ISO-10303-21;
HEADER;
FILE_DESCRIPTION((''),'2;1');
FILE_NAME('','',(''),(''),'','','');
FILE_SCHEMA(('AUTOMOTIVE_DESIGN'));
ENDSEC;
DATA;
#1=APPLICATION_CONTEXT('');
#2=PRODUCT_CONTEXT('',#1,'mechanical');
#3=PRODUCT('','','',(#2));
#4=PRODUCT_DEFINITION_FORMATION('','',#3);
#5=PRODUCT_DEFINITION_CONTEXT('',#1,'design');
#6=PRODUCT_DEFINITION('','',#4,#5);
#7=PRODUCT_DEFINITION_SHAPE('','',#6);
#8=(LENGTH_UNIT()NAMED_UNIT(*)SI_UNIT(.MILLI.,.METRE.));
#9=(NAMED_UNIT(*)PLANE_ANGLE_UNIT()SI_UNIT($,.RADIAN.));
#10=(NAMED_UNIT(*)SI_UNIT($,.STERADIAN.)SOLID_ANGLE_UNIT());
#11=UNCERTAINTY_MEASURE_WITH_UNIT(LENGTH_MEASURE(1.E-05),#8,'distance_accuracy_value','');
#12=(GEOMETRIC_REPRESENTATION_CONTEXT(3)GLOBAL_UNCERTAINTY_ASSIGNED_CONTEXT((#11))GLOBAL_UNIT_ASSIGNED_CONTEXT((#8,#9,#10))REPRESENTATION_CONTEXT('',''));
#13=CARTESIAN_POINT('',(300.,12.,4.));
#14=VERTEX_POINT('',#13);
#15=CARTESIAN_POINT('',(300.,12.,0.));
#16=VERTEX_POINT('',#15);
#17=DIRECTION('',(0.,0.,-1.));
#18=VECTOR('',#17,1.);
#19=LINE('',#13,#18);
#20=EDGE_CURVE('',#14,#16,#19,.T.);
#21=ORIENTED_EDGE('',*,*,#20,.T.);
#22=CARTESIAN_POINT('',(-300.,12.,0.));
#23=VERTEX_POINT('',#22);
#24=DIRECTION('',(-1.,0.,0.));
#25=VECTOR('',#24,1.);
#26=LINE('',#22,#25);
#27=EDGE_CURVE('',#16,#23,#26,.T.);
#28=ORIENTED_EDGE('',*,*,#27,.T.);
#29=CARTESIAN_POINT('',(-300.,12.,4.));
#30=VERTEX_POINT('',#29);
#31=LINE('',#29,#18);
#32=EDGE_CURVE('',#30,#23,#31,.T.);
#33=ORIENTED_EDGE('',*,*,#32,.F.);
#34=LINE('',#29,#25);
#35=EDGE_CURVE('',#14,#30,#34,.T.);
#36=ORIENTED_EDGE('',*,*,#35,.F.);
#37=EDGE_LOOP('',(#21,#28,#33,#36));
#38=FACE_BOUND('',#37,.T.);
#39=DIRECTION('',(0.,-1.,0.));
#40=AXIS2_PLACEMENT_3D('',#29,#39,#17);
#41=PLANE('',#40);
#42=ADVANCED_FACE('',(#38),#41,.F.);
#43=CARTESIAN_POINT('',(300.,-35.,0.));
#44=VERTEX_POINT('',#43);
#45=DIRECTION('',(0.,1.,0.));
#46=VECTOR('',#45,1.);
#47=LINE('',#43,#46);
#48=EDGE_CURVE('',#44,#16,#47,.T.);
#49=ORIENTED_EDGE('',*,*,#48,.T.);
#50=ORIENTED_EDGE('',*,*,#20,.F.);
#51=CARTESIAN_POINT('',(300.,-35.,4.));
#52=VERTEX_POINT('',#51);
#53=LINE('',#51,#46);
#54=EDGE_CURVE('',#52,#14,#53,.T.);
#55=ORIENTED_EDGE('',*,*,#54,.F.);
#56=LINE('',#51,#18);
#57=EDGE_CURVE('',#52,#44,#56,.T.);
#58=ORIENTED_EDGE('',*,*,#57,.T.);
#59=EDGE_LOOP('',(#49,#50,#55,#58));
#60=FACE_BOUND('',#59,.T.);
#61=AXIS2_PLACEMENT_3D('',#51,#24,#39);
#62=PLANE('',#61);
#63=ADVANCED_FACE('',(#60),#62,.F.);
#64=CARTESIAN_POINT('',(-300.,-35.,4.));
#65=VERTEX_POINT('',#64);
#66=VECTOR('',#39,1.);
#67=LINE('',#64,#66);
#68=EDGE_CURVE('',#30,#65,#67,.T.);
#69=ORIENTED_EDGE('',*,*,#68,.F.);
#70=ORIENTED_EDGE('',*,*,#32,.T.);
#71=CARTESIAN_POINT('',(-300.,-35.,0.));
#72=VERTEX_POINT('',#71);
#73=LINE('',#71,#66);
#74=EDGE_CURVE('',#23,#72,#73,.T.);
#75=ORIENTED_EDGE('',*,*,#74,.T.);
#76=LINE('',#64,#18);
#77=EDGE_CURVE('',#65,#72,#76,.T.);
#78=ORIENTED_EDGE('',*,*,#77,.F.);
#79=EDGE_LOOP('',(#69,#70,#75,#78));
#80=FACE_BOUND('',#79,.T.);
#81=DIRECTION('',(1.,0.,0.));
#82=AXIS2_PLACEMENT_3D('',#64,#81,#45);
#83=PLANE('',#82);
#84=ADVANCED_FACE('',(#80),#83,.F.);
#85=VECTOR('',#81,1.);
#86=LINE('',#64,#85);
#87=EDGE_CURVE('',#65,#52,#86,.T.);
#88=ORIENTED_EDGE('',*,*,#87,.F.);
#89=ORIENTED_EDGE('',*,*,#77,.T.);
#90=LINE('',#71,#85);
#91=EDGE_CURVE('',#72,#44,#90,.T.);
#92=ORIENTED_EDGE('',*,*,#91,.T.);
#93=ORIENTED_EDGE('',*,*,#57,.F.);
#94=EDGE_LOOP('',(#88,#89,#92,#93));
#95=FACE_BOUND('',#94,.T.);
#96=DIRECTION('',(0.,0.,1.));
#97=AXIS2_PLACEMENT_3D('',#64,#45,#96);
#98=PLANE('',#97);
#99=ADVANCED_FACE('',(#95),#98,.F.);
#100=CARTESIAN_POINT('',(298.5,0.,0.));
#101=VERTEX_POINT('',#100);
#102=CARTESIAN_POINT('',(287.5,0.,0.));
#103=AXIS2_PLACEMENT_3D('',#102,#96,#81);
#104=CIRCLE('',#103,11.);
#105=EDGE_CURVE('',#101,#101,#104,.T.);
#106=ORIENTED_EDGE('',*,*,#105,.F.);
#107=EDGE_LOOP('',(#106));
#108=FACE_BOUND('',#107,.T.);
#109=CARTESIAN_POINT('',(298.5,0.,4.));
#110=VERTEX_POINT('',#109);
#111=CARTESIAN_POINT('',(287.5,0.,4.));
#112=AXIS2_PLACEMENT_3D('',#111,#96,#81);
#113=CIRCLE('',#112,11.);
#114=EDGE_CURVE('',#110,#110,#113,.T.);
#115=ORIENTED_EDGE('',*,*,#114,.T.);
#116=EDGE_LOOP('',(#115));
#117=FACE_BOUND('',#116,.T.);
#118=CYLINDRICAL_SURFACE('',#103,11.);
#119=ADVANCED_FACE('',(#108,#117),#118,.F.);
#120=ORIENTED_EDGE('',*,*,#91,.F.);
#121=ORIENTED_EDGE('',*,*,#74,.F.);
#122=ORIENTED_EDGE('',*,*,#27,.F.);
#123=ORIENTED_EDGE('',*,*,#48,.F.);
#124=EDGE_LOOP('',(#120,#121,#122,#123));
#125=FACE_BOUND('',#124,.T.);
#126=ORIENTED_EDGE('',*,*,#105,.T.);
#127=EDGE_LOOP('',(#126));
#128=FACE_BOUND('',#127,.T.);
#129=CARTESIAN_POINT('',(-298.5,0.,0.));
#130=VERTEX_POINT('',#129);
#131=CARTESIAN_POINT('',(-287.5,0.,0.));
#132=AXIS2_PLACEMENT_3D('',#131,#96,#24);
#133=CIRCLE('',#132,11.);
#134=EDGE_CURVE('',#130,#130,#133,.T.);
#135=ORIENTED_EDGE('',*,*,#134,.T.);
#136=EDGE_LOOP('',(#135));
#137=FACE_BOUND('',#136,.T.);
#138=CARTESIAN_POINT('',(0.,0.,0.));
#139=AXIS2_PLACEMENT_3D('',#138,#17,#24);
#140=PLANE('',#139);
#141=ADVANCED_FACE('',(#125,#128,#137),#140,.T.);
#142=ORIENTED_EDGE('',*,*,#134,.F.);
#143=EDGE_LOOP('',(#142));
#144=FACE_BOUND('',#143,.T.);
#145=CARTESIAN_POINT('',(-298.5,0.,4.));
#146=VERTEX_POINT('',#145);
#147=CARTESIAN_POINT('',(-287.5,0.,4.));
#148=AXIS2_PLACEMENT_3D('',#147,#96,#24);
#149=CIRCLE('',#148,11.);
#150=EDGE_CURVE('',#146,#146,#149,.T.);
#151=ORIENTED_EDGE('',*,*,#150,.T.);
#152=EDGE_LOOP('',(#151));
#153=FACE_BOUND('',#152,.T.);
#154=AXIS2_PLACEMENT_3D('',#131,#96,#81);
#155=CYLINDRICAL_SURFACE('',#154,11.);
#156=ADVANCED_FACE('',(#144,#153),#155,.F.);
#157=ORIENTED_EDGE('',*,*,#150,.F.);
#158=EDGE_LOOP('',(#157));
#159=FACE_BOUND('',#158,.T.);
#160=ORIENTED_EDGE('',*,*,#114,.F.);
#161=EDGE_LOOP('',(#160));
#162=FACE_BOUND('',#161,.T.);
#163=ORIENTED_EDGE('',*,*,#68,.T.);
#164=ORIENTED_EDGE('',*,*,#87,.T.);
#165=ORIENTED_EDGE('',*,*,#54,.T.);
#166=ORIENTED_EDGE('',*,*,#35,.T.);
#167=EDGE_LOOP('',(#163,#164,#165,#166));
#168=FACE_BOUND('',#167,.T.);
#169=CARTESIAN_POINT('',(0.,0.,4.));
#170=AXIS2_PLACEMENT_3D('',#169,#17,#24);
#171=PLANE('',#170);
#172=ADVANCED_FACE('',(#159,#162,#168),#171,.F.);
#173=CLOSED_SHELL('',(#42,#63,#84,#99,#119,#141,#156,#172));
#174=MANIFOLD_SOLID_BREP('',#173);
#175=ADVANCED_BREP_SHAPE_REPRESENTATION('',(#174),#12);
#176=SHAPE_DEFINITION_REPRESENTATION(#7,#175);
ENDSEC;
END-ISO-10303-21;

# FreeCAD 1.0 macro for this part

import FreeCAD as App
import Part
import Sketcher
Q = App.Units.Quantity

doc = App.newDocument("Part")
body = doc.addObject("PartDesign::Body", "Body")

sketch1 = body.newObject("Sketcher::SketchObject", "Sketch")
sketch1.AttachmentSupport = (doc.getObject("XY_Plane"), [""])
sketch1.MapMode = "FlatFace"
sketch1.addGeometry(Part.LineSegment(App.Vector(-300, 12, 0), App.Vector(-300, -35, 0)), False)
sketch1.addGeometry(Part.LineSegment(App.Vector(-300, -35, 0), App.Vector(300, -35, 0)), False)
sketch1.addGeometry(Part.LineSegment(App.Vector(300, -35, 0), App.Vector(300, 12, 0)), False)
sketch1.addGeometry(Part.LineSegment(App.Vector(300, 12, 0), App.Vector(-300, 12, 0)), False)
sketch1.addConstraint(Sketcher.Constraint("Coincident", 0, 2, 1, 1))
sketch1.addConstraint(Sketcher.Constraint("Coincident", 1, 2, 2, 1))
sketch1.addConstraint(Sketcher.Constraint("Coincident", 2, 2, 3, 1))
sketch1.addConstraint(Sketcher.Constraint("Coincident", 3, 2, 0, 1))
sketch1.addConstraint(Sketcher.Constraint("Vertical", 0))
sketch1.addConstraint(Sketcher.Constraint("Horizontal", 1))
sketch1.addConstraint(Sketcher.Constraint("Vertical", 2))
sketch1.addConstraint(Sketcher.Constraint("Horizontal", 3))
sketch1.addConstraint(Sketcher.Constraint("DistanceX", 1, 1, 1, 2, Q("600 mm")))
sketch1.addConstraint(Sketcher.Constraint("DistanceY", 0, 2, 0, 1, Q("47 mm")))
sketch1.addConstraint(Sketcher.Constraint("DistanceX", 0, 2, -1, 1, Q("300 mm")))
sketch1.addConstraint(Sketcher.Constraint("DistanceY", 0, 2, -1, 1, Q("35 mm")))
pad1 = body.newObject("PartDesign::Pad", "Pad")
pad1.Profile = sketch1
pad1.Length = 4

sketch2 = body.newObject("Sketcher::SketchObject", "Sketch001")
sketch2.AttachmentSupport = (doc.getObject("XY_Plane"), [""])
sketch2.MapMode = "FlatFace"
sketch2.AttachmentOffset = App.Placement(App.Vector(0, 0, 4), App.Rotation())
sketch2.addGeometry(Part.Circle(App.Vector(287.5, 0, 0), App.Vector(0, 0, 1), 11), False)
sketch2.addGeometry(Part.Circle(App.Vector(-287.5, 0, 0), App.Vector(0, 0, 1), 11), False)
sketch2.addConstraint(Sketcher.Constraint("Equal", 0, 1))
sketch2.addConstraint(Sketcher.Constraint("Symmetric", 0, 3, 1, 3, -1, 1))
sketch2.addConstraint(Sketcher.Constraint("PointOnObject", 0, 3, -1))
sketch2.addConstraint(Sketcher.Constraint("Diameter", 0, Q("22 mm")))
sketch2.addConstraint(Sketcher.Constraint("DistanceX", 1, 3, 0, 3, Q("575 mm")))
pocket1 = body.newObject("PartDesign::Pocket", "Pocket")
pocket1.Profile = sketch2
pocket1.Length = 4

doc.recompute()
